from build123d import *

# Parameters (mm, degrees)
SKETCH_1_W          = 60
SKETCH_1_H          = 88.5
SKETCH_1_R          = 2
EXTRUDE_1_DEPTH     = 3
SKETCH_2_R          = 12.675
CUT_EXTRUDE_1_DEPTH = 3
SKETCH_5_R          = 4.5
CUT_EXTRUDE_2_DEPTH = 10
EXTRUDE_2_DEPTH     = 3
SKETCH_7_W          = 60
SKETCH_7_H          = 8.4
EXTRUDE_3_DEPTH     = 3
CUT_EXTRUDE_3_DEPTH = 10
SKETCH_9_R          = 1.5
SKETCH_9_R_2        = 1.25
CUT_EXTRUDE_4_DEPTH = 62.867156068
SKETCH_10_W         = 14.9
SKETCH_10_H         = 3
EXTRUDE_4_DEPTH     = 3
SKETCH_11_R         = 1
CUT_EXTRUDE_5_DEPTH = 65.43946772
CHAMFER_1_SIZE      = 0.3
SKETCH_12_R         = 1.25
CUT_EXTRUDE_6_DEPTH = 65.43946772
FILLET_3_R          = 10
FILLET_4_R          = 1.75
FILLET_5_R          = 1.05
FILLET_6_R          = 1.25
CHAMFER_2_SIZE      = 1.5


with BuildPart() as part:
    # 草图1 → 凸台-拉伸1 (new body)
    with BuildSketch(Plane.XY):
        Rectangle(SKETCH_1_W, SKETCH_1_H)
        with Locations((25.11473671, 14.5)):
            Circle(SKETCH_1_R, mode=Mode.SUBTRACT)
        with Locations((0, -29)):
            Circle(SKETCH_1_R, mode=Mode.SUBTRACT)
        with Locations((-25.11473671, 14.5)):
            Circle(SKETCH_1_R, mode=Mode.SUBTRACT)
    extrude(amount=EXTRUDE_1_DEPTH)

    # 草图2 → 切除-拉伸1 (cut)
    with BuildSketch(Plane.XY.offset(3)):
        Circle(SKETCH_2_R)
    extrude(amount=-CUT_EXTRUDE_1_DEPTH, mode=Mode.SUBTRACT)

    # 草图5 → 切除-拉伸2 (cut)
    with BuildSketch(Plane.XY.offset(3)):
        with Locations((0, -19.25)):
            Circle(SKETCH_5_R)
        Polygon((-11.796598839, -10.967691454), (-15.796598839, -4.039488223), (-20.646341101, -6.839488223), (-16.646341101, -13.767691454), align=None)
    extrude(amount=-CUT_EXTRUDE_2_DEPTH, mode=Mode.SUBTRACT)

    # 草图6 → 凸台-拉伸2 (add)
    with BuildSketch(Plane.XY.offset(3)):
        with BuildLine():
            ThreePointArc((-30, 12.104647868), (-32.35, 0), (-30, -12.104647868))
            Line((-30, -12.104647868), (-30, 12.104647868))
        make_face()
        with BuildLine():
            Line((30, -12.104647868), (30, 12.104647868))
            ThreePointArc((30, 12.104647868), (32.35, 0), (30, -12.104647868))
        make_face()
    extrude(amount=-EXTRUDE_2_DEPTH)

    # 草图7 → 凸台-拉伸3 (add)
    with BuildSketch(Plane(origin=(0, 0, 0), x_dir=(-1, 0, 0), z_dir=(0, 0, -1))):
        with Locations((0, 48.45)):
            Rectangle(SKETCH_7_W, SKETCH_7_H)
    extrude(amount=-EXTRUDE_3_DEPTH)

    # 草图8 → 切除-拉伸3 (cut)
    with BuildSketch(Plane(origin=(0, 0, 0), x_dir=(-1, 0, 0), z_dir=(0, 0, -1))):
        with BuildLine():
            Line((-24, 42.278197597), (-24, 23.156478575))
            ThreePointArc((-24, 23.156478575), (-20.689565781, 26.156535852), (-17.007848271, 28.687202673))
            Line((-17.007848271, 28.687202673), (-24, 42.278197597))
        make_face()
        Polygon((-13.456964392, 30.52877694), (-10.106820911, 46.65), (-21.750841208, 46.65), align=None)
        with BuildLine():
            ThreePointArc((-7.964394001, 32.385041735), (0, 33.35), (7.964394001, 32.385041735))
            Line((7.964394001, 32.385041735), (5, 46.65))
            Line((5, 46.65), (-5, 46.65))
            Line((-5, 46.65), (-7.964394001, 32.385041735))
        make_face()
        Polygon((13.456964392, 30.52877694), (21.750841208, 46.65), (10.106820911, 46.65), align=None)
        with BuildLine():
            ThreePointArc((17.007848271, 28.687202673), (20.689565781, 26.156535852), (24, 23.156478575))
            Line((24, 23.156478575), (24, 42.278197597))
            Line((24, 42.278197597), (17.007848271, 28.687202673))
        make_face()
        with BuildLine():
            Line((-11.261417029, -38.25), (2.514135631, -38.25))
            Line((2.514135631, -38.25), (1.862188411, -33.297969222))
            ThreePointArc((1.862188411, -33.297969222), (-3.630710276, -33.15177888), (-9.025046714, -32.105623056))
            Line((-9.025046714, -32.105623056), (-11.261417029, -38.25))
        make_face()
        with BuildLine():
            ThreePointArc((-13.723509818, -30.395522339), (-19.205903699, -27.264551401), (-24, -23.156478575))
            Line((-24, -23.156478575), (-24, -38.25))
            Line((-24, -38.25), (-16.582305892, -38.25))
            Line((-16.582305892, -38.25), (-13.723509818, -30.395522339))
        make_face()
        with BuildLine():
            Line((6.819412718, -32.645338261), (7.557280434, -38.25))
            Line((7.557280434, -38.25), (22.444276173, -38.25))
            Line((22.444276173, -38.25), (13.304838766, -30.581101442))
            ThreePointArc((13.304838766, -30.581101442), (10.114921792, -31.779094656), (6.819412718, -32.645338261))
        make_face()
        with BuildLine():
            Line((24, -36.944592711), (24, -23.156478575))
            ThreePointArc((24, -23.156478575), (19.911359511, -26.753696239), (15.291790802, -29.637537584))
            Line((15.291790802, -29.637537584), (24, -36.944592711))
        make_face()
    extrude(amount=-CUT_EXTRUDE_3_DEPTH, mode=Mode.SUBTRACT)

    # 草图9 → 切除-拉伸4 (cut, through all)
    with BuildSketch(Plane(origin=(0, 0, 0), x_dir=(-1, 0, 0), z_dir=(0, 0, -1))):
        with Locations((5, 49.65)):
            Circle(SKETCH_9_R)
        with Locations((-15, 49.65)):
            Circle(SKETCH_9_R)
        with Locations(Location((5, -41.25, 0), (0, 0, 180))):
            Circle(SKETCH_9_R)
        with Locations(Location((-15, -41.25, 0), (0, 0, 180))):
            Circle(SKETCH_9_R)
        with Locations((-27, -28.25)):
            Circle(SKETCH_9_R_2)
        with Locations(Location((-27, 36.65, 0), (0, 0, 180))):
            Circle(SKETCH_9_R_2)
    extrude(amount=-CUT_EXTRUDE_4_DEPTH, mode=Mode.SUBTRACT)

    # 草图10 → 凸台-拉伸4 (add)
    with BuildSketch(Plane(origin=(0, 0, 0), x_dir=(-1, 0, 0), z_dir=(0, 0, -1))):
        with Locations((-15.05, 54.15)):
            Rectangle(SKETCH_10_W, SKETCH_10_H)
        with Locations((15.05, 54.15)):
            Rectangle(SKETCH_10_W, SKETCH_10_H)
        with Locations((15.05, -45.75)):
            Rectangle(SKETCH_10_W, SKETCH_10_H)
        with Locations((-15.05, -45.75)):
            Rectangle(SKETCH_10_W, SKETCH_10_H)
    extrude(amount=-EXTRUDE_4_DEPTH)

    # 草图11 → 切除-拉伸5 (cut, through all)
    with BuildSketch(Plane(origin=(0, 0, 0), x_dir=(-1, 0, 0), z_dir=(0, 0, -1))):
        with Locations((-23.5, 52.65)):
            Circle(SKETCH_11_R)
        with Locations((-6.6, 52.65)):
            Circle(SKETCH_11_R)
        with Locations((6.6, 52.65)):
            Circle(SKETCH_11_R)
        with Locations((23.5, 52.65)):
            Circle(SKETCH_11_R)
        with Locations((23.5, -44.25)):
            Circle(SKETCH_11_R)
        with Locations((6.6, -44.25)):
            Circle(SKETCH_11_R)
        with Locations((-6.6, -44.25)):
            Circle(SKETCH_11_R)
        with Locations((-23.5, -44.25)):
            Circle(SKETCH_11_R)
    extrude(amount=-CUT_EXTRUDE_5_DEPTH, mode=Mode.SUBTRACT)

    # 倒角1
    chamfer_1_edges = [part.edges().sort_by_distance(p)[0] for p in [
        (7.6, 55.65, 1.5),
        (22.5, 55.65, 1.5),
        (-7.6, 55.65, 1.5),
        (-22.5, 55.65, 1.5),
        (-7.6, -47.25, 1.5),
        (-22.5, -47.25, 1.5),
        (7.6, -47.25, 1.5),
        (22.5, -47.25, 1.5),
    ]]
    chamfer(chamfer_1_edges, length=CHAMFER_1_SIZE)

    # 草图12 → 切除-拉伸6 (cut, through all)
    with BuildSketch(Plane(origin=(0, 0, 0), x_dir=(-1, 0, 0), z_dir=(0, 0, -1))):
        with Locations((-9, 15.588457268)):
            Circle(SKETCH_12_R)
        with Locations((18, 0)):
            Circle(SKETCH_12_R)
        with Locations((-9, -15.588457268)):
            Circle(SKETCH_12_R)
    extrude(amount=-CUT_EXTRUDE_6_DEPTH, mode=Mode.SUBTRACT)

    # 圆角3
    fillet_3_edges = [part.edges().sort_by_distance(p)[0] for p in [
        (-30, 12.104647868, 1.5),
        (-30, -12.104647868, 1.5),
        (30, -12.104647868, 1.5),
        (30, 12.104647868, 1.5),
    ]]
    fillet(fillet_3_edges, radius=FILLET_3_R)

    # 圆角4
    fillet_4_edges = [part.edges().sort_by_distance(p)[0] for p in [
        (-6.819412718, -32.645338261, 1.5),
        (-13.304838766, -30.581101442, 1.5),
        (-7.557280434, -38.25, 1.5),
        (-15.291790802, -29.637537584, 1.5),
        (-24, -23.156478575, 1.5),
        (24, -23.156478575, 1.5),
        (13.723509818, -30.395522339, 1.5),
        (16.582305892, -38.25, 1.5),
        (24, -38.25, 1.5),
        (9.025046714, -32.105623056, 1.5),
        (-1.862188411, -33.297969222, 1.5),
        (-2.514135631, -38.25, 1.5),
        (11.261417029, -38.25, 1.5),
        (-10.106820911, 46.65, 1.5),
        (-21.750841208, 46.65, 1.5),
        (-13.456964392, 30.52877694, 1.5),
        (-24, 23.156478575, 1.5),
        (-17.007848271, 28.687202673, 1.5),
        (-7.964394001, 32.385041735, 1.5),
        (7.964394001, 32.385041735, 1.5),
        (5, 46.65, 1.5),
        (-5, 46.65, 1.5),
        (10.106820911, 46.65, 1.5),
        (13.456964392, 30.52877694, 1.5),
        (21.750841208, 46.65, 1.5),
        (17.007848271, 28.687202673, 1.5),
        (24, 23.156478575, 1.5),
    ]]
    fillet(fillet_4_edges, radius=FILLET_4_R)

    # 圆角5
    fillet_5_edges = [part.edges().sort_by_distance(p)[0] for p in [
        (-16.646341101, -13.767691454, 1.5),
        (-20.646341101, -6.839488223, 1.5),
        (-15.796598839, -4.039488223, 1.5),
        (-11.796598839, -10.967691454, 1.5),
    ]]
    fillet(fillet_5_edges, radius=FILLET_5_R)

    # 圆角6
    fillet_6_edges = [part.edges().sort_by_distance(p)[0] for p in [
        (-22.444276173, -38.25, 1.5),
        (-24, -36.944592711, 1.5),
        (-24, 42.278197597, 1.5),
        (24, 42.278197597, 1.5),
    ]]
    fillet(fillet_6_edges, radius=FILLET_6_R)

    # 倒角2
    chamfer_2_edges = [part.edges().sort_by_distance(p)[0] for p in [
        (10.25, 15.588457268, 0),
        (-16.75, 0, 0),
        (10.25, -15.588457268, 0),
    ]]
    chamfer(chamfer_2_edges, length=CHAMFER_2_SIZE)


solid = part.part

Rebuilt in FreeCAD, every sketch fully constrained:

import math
import FreeCAD as App
import Part
import Sketcher
Q = App.Units.Quantity


def edges_at(feature, points):
    """Names of the edges that pass closest to the given points."""
    edges = feature.Shape.Edges
    near = lambda p: min(range(len(edges)), key=lambda i: edges[i].distToShape(Part.Vertex(*p))[0])
    return sorted({f"Edge{near(p) + 1}" for p in points})


def add_polygon(sketch, points):
    """Adds a closed chain of lines whose ends are joined by coincident constraints."""
    first, n = sketch.GeometryCount, len(points)
    for a, b in zip(points, points[1:] + points[:1]):
        sketch.addGeometry(Part.LineSegment(App.Vector(*a, 0), App.Vector(*b, 0)), False)
    for i in range(n):
        sketch.addConstraint(Sketcher.Constraint("Coincident", first + i, 2, first + (i + 1) % n, 1))

doc = App.newDocument("Part")
body = doc.addObject("PartDesign::Body", "Body")

# Sketch on XY plane
sketch1 = doc.addObject("Sketcher::SketchObject", "Sketch")
body.addObject(sketch1)
sketch1.AttachmentSupport = (doc.XY_Plane, [""])
sketch1.MapMode = "FlatFace"
add_polygon(sketch1, [(-30, 44.2), (-30, -44.2), (30, -44.2), (30, 44.2)])  # lines 0-3
sketch1.addGeometry(Part.Circle(App.Vector(0, -29, 0), App.Vector(0, 0, 1), 2), False)  # 4
sketch1.addGeometry(Part.Circle(App.Vector(-25.1, 14.5, 0), App.Vector(0, 0, 1), 2), False)  # 5
sketch1.addGeometry(Part.Circle(App.Vector(25.1, 14.5, 0), App.Vector(0, 0, 1), 2), False)  # 6
sketch1.addConstraint(Sketcher.Constraint("Vertical", 0))
sketch1.addConstraint(Sketcher.Constraint("Horizontal", 1))
sketch1.addConstraint(Sketcher.Constraint("Vertical", 2))
sketch1.addConstraint(Sketcher.Constraint("Horizontal", 3))
sketch1.addConstraint(Sketcher.Constraint("Equal", 4, 5))
sketch1.addConstraint(Sketcher.Constraint("Equal", 5, 6))
sketch1.addConstraint(Sketcher.Constraint("Symmetric", 0, 2, 2, 2, -1, 1))
sketch1.addConstraint(Sketcher.Constraint("Symmetric", 5, 3, 6, 3, -2))
sketch1.addConstraint(Sketcher.Constraint("PointOnObject", 4, 3, -2))
sketch1.addConstraint(Sketcher.Constraint("Diameter", 4, 4.0))
sketch1.addConstraint(Sketcher.Constraint("DistanceX", 1, 1, 1, 2, 60.0))
sketch1.addConstraint(Sketcher.Constraint("DistanceY", 0, 2, 0, 1, 88.5))
sketch1.addConstraint(Sketcher.Constraint("DistanceY", 4, 3, -1, 1, 29.0))
sketch1.addConstraint(Sketcher.Constraint("DistanceY", -1, 1, 5, 3, 14.5))
sketch1.addConstraint(Sketcher.Constraint("DistanceX", 5, 3, -1, 1, 25.114737))
pad1 = doc.addObject("PartDesign::Pad", "Pad")
body.addObject(pad1)
pad1.Profile = sketch1
pad1.Length = 3

# Sketch on XY plane
sketch2 = doc.addObject("Sketcher::SketchObject", "Sketch001")
body.addObject(sketch2)
sketch2.AttachmentSupport = (doc.XY_Plane, [""])
sketch2.MapMode = "FlatFace"
sketch2.AttachmentOffset = App.Placement(App.Vector(0, 0, 3), App.Rotation())
sketch2.addGeometry(Part.Circle(App.Vector(0, 0, 0), App.Vector(0, 0, 1), 13), False)
sketch2.addConstraint(Sketcher.Constraint("Coincident", 0, 3, -1, 1))
sketch2.addConstraint(Sketcher.Constraint("Diameter", 0, 25.35))
pocket1 = doc.addObject("PartDesign::Pocket", "Pocket")
body.addObject(pocket1)
pocket1.Profile = sketch2
pocket1.Length = 3

# Sketch on XY plane
sketch3 = doc.addObject("Sketcher::SketchObject", "Sketch002")
body.addObject(sketch3)
sketch3.AttachmentSupport = (doc.XY_Plane, [""])
sketch3.MapMode = "FlatFace"
sketch3.AttachmentOffset = App.Placement(App.Vector(0, 0, 3), App.Rotation())
sketch3.addGeometry(Part.Circle(App.Vector(0, -19.2, 0), App.Vector(0, 0, 1), 4.5), False)  # 0
add_polygon(sketch3, [(-11.8, -11), (-15.8, -4), (-20.6, -6.8), (-16.6, -13.8)])  # lines 1-4
sketch3.addConstraint(Sketcher.Constraint("PointOnObject", 0, 3, -2))
sketch3.addConstraint(Sketcher.Constraint("Perpendicular", 1, 2))
sketch3.addConstraint(Sketcher.Constraint("Perpendicular", 2, 3))
sketch3.addConstraint(Sketcher.Constraint("Perpendicular", 3, 4))
sketch3.addConstraint(Sketcher.Constraint("Diameter", 0, 9.0))
sketch3.addConstraint(Sketcher.Constraint("Angle", 1, Q("120 deg")))
sketch3.addConstraint(Sketcher.Constraint("Distance", 1, 8.0))
sketch3.addConstraint(Sketcher.Constraint("Distance", 2, 5.6))
sketch3.addConstraint(Sketcher.Constraint("DistanceY", 0, 3, -1, 1, 19.25))
sketch3.addConstraint(Sketcher.Constraint("DistanceX", 1, 2, -1, 1, 15.796599))
sketch3.addConstraint(Sketcher.Constraint("DistanceY", 1, 2, -1, 1, 4.039488))
pocket2 = doc.addObject("PartDesign::Pocket", "Pocket001")
body.addObject(pocket2)
pocket2.Profile = sketch3
pocket2.Length = 10

# Sketch on XY plane
sketch4 = doc.addObject("Sketcher::SketchObject", "Sketch003")
body.addObject(sketch4)
sketch4.AttachmentSupport = (doc.XY_Plane, [""])
sketch4.MapMode = "FlatFace"
sketch4.AttachmentOffset = App.Placement(App.Vector(0, 0, 3), App.Rotation())
sketch4.addGeometry(Part.ArcOfCircle(Part.Circle(App.Vector(0, 0, 0), App.Vector(0, 0, 1), 32), math.radians(158), math.radians(202)), False)
sketch4.addGeometry(Part.LineSegment(App.Vector(-30, -12, 0), App.Vector(-30, 12, 0)), False)
sketch4.addGeometry(Part.LineSegment(App.Vector(30, 12, 0), App.Vector(30, -12, 0)), False)
sketch4.addGeometry(Part.ArcOfCircle(Part.Circle(App.Vector(0, 0, 0), App.Vector(0, 0, 1), 32), math.radians(-22), math.radians(22)), False)
sketch4.addConstraint(Sketcher.Constraint("Coincident", 0, 1, 1, 2))
sketch4.addConstraint(Sketcher.Constraint("Coincident", 1, 1, 0, 2))
sketch4.addConstraint(Sketcher.Constraint("Coincident", 2, 1, 3, 2))
sketch4.addConstraint(Sketcher.Constraint("Coincident", 3, 1, 2, 2))
sketch4.addConstraint(Sketcher.Constraint("Vertical", 1))
sketch4.addConstraint(Sketcher.Constraint("Vertical", 2))
sketch4.addConstraint(Sketcher.Constraint("Coincident", 0, 3, -1, 1))
sketch4.addConstraint(Sketcher.Constraint("Coincident", 3, 3, -1, 1))
sketch4.addConstraint(Sketcher.Constraint("Equal", 0, 3))
sketch4.addConstraint(Sketcher.Constraint("Horizontal", 0, 1, 2, 1))
sketch4.addConstraint(Sketcher.Constraint("Radius", 0, 32.35))
sketch4.addConstraint(Sketcher.Constraint("DistanceX", 0, 1, -1, 1, 30.0))
pad2 = doc.addObject("PartDesign::Pad", "Pad001")
body.addObject(pad2)
pad2.Profile = sketch4
pad2.Length = 3
pad2.Reversed = True

# Sketch on XY plane
sketch5 = doc.addObject("Sketcher::SketchObject", "Sketch004")
body.addObject(sketch5)
sketch5.AttachmentSupport = (doc.XY_Plane, [""])
sketch5.MapMode = "FlatFace"
add_polygon(sketch5, [(30, 53), (30, 44), (-30, 44), (-30, 53)])  # lines 0-3
sketch5.addConstraint(Sketcher.Constraint("Vertical", 0))
sketch5.addConstraint(Sketcher.Constraint("Horizontal", 1))
sketch5.addConstraint(Sketcher.Constraint("Vertical", 2))
sketch5.addConstraint(Sketcher.Constraint("Horizontal", 3))
sketch5.addConstraint(Sketcher.Constraint("DistanceX", 1, 2, 1, 1, 60.0))
sketch5.addConstraint(Sketcher.Constraint("DistanceY", 0, 2, 0, 1, 8.4))
sketch5.addConstraint(Sketcher.Constraint("DistanceX", -1, 1, 0, 2, 30.0))
sketch5.addConstraint(Sketcher.Constraint("DistanceY", -1, 1, 0, 2, 44.25))
pad3 = doc.addObject("PartDesign::Pad", "Pad002")
body.addObject(pad3)
pad3.Profile = sketch5
pad3.Length = 3

# Sketch on XY plane
sketch6 = doc.addObject("Sketcher::SketchObject", "Sketch005")
body.addObject(sketch6)
sketch6.AttachmentSupport = (doc.XY_Plane, [""])
sketch6.MapMode = "FlatFace"
sketch6.addGeometry(Part.LineSegment(App.Vector(24, 42.3, 0), App.Vector(24, 23.2, 0)), False)  # 0
sketch6.addGeometry(Part.ArcOfCircle(Part.Circle(App.Vector(0, 0, 0), App.Vector(0, 0, 1), 33.4), math.radians(43.98), math.radians(59.34)), False)  # 1
sketch6.addGeometry(Part.LineSegment(App.Vector(17, 28.7, 0), App.Vector(24, 42.3, 0)), False)  # 2
add_polygon(sketch6, [(13.5, 30.5), (10.1, 46.6), (21.8, 46.6)])  # lines 3-5
sketch6.addGeometry(Part.ArcOfCircle(Part.Circle(App.Vector(0, 0, 0), App.Vector(0, 0, 1), 33.3), math.radians(76), math.radians(104)), False)  # 6
sketch6.addGeometry(Part.LineSegment(App.Vector(-8, 32.4, 0), App.Vector(-5, 46.6, 0)), False)  # 7
sketch6.addGeometry(Part.LineSegment(App.Vector(-5, 46.6, 0), App.Vector(5, 46.6, 0)), False)  # 8
sketch6.addGeometry(Part.LineSegment(App.Vector(5, 46.6, 0), App.Vector(8, 32.4, 0)), False)  # 9
add_polygon(sketch6, [(-13.5, 30.5), (-21.8, 46.6), (-10.1, 46.6)])  # lines 10-12
sketch6.addGeometry(Part.ArcOfCircle(Part.Circle(App.Vector(0, 0, 0), App.Vector(0, 0, 1), 33.4), math.radians(120.66), math.radians(136.02)), False)  # 13
sketch6.addGeometry(Part.LineSegment(App.Vector(-24, 23.2, 0), App.Vector(-24, 42.3, 0)), False)  # 14
sketch6.addGeometry(Part.LineSegment(App.Vector(-24, 42.3, 0), App.Vector(-17, 28.7, 0)), False)  # 15
sketch6.addGeometry(Part.LineSegment(App.Vector(11.3, -38.2, 0), App.Vector(-2.5, -38.2, 0)), False)  # 16
sketch6.addGeometry(Part.LineSegment(App.Vector(-2.5, -38.2, 0), App.Vector(-1.9, -33.3, 0)), False)  # 17
sketch6.addGeometry(Part.ArcOfCircle(Part.Circle(App.Vector(0, 0, 0), App.Vector(0, 0, 1), 33.3), math.radians(-93.2), math.radians(-74.3)), False)  # 18
sketch6.addGeometry(Part.LineSegment(App.Vector(9, -32.1, 0), App.Vector(11.3, -38.2, 0)), False)  # 19
sketch6.addGeometry(Part.ArcOfCircle(Part.Circle(App.Vector(0, 0, 0), App.Vector(0, 0, 1), 33.3), math.radians(-66), math.radians(-44)), False)  # 20
sketch6.addGeometry(Part.LineSegment(App.Vector(24, -23.2, 0), App.Vector(24, -38.2, 0)), False)  # 21
sketch6.addGeometry(Part.LineSegment(App.Vector(24, -38.2, 0), App.Vector(16.6, -38.2, 0)), False)  # 22
sketch6.addGeometry(Part.LineSegment(App.Vector(16.6, -38.2, 0), App.Vector(13.7, -30.4, 0)), False)  # 23
sketch6.addGeometry(Part.LineSegment(App.Vector(-6.8, -32.6, 0), App.Vector(-7.6, -38.2, 0)), False)  # 24
sketch6.addGeometry(Part.LineSegment(App.Vector(-7.6, -38.2, 0), App.Vector(-22.4, -38.2, 0)), False)  # 25
sketch6.addGeometry(Part.LineSegment(App.Vector(-22.4, -38.2, 0), App.Vector(-13.3, -30.6, 0)), False)  # 26
sketch6.addGeometry(Part.ArcOfCircle(Part.Circle(App.Vector(0, 0, 0), App.Vector(0, 0, 1), 33.3), math.radians(-113.51), math.radians(-101.8)), False)  # 27
sketch6.addGeometry(Part.LineSegment(App.Vector(-24, -36.9, 0), App.Vector(-24, -23.2, 0)), False)  # 28
sketch6.addGeometry(Part.ArcOfCircle(Part.Circle(App.Vector(0, 0, 0), App.Vector(0, 0, 1), 33.3), math.radians(-136.02), math.radians(-117.29)), False)  # 29
sketch6.addGeometry(Part.LineSegment(App.Vector(-15.3, -29.6, 0), App.Vector(-24, -36.9, 0)), False)  # 30
sketch6.addConstraint(Sketcher.Constraint("Coincident", 0, 2, 1, 1))
sketch6.addConstraint(Sketcher.Constraint("Coincident", 1, 2, 2, 1))
sketch6.addConstraint(Sketcher.Constraint("Coincident", 2, 2, 0, 1))
sketch6.addConstraint(Sketcher.Constraint("Coincident", 6, 2, 7, 1))
sketch6.addConstraint(Sketcher.Constraint("Coincident", 7, 2, 8, 1))
sketch6.addConstraint(Sketcher.Constraint("Coincident", 8, 2, 9, 1))
sketch6.addConstraint(Sketcher.Constraint("Coincident", 9, 2, 6, 1))
sketch6.addConstraint(Sketcher.Constraint("Coincident", 13, 2, 14, 1))
sketch6.addConstraint(Sketcher.Constraint("Coincident", 14, 2, 15, 1))
sketch6.addConstraint(Sketcher.Constraint("Coincident", 15, 2, 13, 1))
sketch6.addConstraint(Sketcher.Constraint("Coincident", 16, 2, 17, 1))
sketch6.addConstraint(Sketcher.Constraint("Coincident", 17, 2, 18, 1))
sketch6.addConstraint(Sketcher.Constraint("Coincident", 18, 2, 19, 1))
sketch6.addConstraint(Sketcher.Constraint("Coincident", 19, 2, 16, 1))
sketch6.addConstraint(Sketcher.Constraint("Coincident", 20, 2, 21, 1))
sketch6.addConstraint(Sketcher.Constraint("Coincident", 21, 2, 22, 1))
sketch6.addConstraint(Sketcher.Constraint("Coincident", 22, 2, 23, 1))
sketch6.addConstraint(Sketcher.Constraint("Coincident", 23, 2, 20, 1))
sketch6.addConstraint(Sketcher.Constraint("Coincident", 24, 2, 25, 1))
sketch6.addConstraint(Sketcher.Constraint("Coincident", 25, 2, 26, 1))
sketch6.addConstraint(Sketcher.Constraint("Coincident", 26, 2, 27, 1))
sketch6.addConstraint(Sketcher.Constraint("Coincident", 27, 2, 24, 1))
sketch6.addConstraint(Sketcher.Constraint("Coincident", 28, 2, 29, 1))
sketch6.addConstraint(Sketcher.Constraint("Coincident", 29, 2, 30, 1))
sketch6.addConstraint(Sketcher.Constraint("Coincident", 30, 2, 28, 1))
sketch6.addConstraint(Sketcher.Constraint("Vertical", 0))
sketch6.addConstraint(Sketcher.Constraint("Horizontal", 4))
sketch6.addConstraint(Sketcher.Constraint("Horizontal", 8))
sketch6.addConstraint(Sketcher.Constraint("Horizontal", 11))
sketch6.addConstraint(Sketcher.Constraint("Vertical", 14))
sketch6.addConstraint(Sketcher.Constraint("Horizontal", 16))
sketch6.addConstraint(Sketcher.Constraint("Vertical", 21))
sketch6.addConstraint(Sketcher.Constraint("Horizontal", 22))
sketch6.addConstraint(Sketcher.Constraint("Horizontal", 25))
sketch6.addConstraint(Sketcher.Constraint("Vertical", 28))
sketch6.addConstraint(Sketcher.Constraint("Coincident", 1, 3, -1, 1))
sketch6.addConstraint(Sketcher.Constraint("Coincident", 6, 3, -1, 1))
sketch6.addConstraint(Sketcher.Constraint("Coincident", 13, 3, -1, 1))
sketch6.addConstraint(Sketcher.Constraint("Coincident", 18, 3, -1, 1))
sketch6.addConstraint(Sketcher.Constraint("Coincident", 20, 3, -1, 1))
sketch6.addConstraint(Sketcher.Constraint("Coincident", 27, 3, -1, 1))
sketch6.addConstraint(Sketcher.Constraint("Coincident", 29, 3, -1, 1))
sketch6.addConstraint(Sketcher.Constraint("Equal", 1, 6))
sketch6.addConstraint(Sketcher.Constraint("Equal", 6, 13))
sketch6.addConstraint(Sketcher.Constraint("Equal", 13, 18))
sketch6.addConstraint(Sketcher.Constraint("Equal", 18, 20))
sketch6.addConstraint(Sketcher.Constraint("Equal", 20, 27))
sketch6.addConstraint(Sketcher.Constraint("Equal", 27, 29))
sketch6.addConstraint(Sketcher.Constraint("Symmetric", 4, 2, 10, 2, -2))
sketch6.addConstraint(Sketcher.Constraint("Symmetric", 5, 2, 12, 2, -2))
sketch6.addConstraint(Sketcher.Constraint("Symmetric", 2, 2, 14, 2, -2))
sketch6.addConstraint(Sketcher.Constraint("Parallel", 2, 5))
sketch6.addConstraint(Sketcher.Constraint("Parallel", 3, 9))
sketch6.addConstraint(Sketcher.Constraint("Parallel", 7, 12))
sketch6.addConstraint(Sketcher.Constraint("Parallel", 10, 15))
sketch6.addConstraint(Sketcher.Constraint("Parallel", 19, 23))
sketch6.addConstraint(Sketcher.Constraint("Parallel", 17, 24))
sketch6.addConstraint(Sketcher.Constraint("Parallel", 26, 30))
sketch6.addConstraint(Sketcher.Constraint("Horizontal", 4, 2, 7, 2))
sketch6.addConstraint(Sketcher.Constraint("Horizontal", 6, 2, 9, 2))
sketch6.addConstraint(Sketcher.Constraint("Horizontal", 19, 2, 21, 2))
sketch6.addConstraint(Sketcher.Constraint("Horizontal", 22, 2, 24, 2))
sketch6.addConstraint(Sketcher.Constraint("Horizontal", 20, 2, 28, 2))
sketch6.addConstraint(Sketcher.Constraint("Vertical", 2, 2, 20, 2))
sketch6.addConstraint(Sketcher.Constraint("Equal", 4, 11))
sketch6.addConstraint(Sketcher.Constraint("DistanceX", 8, 1, 8, 2, 10.0))
sketch6.addConstraint(Sketcher.Constraint("Angle", 19, Q("-70 deg")))
sketch6.addConstraint(Sketcher.Constraint("Angle", 26, Q("40 deg")))
sketch6.addConstraint(Sketcher.Constraint("Radius", 1, 33.35))
sketch6.addConstraint(Sketcher.Constraint("DistanceX", -1, 1, 0, 2, 24.0))
sketch6.addConstraint(Sketcher.Constraint("Angle", 17, Q("82.5 deg")))
sketch6.addConstraint(Sketcher.Constraint("DistanceY", -1, 1, 3, 2, 46.65))
sketch6.addConstraint(Sketcher.Constraint("DistanceY", 16, 2, -1, 1, 38.25))
sketch6.addConstraint(Sketcher.Constraint("DistanceX", 4, 1, 4, 2, 11.64402))
sketch6.addConstraint(Sketcher.Constraint("DistanceY", 0, 2, 0, 1, 19.121719))
sketch6.addConstraint(Sketcher.Constraint("DistanceY", 26, 2, -1, 1, 30.581101))
sketch6.addConstraint(Sketcher.Constraint("DistanceY", 0, 2, 5, 2, 7.372298))
sketch6.addConstraint(Sketcher.Constraint("DistanceY", 18, 2, 23, 2, 1.710101))
sketch6.addConstraint(Sketcher.Constraint("DistanceY", 27, 2, 29, 2, 3.007801))
sketch6.addConstraint(Sketcher.Constraint("Distance", 3, 16.46564))
sketch6.addConstraint(Sketcher.Constraint("Distance", 17, 4.994762))
sketch6.addConstraint(Sketcher.Constraint("Distance", 19, 6.538709))
sketch6.addConstraint(Sketcher.Constraint("Distance", 30, 11.36776))
sketch6.addConstraint(Sketcher.Constraint("DistanceX", -1, 1, 3, 2, 10.106821))
pocket3 = doc.addObject("PartDesign::Pocket", "Pocket002")
body.addObject(pocket3)
pocket3.Profile = sketch6
pocket3.Length = 10
pocket3.Reversed = True

# Sketch on XY plane
sketch7 = doc.addObject("Sketcher::SketchObject", "Sketch006")
body.addObject(sketch7)
sketch7.AttachmentSupport = (doc.XY_Plane, [""])
sketch7.MapMode = "FlatFace"
sketch7.addGeometry(Part.Circle(App.Vector(-5, 49.6, 0), App.Vector(0, 0, 1), 1.5), False)
sketch7.addGeometry(Part.Circle(App.Vector(15, 49.6, 0), App.Vector(0, 0, 1), 1.5), False)
sketch7.addGeometry(Part.Circle(App.Vector(-5, -41.2, 0), App.Vector(0, 0, 1), 1.5), False)
sketch7.addGeometry(Part.Circle(App.Vector(15, -41.2, 0), App.Vector(0, 0, 1), 1.5), False)
sketch7.addGeometry(Part.Circle(App.Vector(27, -28.2, 0), App.Vector(0, 0, 1), 1.2), False)
sketch7.addGeometry(Part.Circle(App.Vector(27, 36.6, 0), App.Vector(0, 0, 1), 1.2), False)
sketch7.addConstraint(Sketcher.Constraint("Equal", 0, 1))
sketch7.addConstraint(Sketcher.Constraint("Equal", 1, 2))
sketch7.addConstraint(Sketcher.Constraint("Equal", 2, 3))
sketch7.addConstraint(Sketcher.Constraint("Equal", 4, 5))
sketch7.addConstraint(Sketcher.Constraint("Horizontal", 0, 3, 1, 3))
sketch7.addConstraint(Sketcher.Constraint("Horizontal", 2, 3, 3, 3))
sketch7.addConstraint(Sketcher.Constraint("Vertical", 0, 3, 2, 3))
sketch7.addConstraint(Sketcher.Constraint("Vertical", 1, 3, 3, 3))
sketch7.addConstraint(Sketcher.Constraint("Vertical", 4, 3, 5, 3))
sketch7.addConstraint(Sketcher.Constraint("Diameter", 0, 3.0))
sketch7.addConstraint(Sketcher.Constraint("Diameter", 4, 2.5))
sketch7.addConstraint(Sketcher.Constraint("DistanceX", 0, 3, -1, 1, 5.0))
sketch7.addConstraint(Sketcher.Constraint("DistanceX", -1, 1, 1, 3, 15.0))
sketch7.addConstraint(Sketcher.Constraint("DistanceX", -1, 1, 4, 3, 27.0))
sketch7.addConstraint(Sketcher.Constraint("DistanceY", 3, 3, 4, 3, 13.0))
sketch7.addConstraint(Sketcher.Constraint("DistanceY", 5, 3, 1, 3, 13.0))
sketch7.addConstraint(Sketcher.Constraint("DistanceY", 2, 3, 0, 3, 90.9))
sketch7.addConstraint(Sketcher.Constraint("DistanceY", -1, 1, 0, 3, 49.65))
pocket4 = doc.addObject("PartDesign::Pocket", "Pocket003")
body.addObject(pocket4)
pocket4.Profile = sketch7
pocket4.Type = "ThroughAll"
pocket4.Reversed = True

# Sketch on XY plane
sketch8 = doc.addObject("Sketcher::SketchObject", "Sketch007")
body.addObject(sketch8)
sketch8.AttachmentSupport = (doc.XY_Plane, [""])
sketch8.MapMode = "FlatFace"
add_polygon(sketch8, [(22.5, 55.6), (22.5, 52.6), (7.6, 52.6), (7.6, 55.6)])  # lines 0-3
add_polygon(sketch8, [(-7.6, 55.6), (-7.6, 52.6), (-22.5, 52.6), (-22.5, 55.6)])  # lines 4-7
add_polygon(sketch8, [(-7.6, -44.2), (-7.6, -47.2), (-22.5, -47.2), (-22.5, -44.2)])  # lines 8-11
add_polygon(sketch8, [(22.5, -44.2), (22.5, -47.2), (7.6, -47.2), (7.6, -44.2)])  # lines 12-15
sketch8.addConstraint(Sketcher.Constraint("Vertical", 0))
sketch8.addConstraint(Sketcher.Constraint("Horizontal", 1))
sketch8.addConstraint(Sketcher.Constraint("Vertical", 2))
sketch8.addConstraint(Sketcher.Constraint("Horizontal", 3))
sketch8.addConstraint(Sketcher.Constraint("Vertical", 4))
sketch8.addConstraint(Sketcher.Constraint("Horizontal", 5))
sketch8.addConstraint(Sketcher.Constraint("Vertical", 6))
sketch8.addConstraint(Sketcher.Constraint("Horizontal", 7))
sketch8.addConstraint(Sketcher.Constraint("Vertical", 8))
sketch8.addConstraint(Sketcher.Constraint("Horizontal", 9))
sketch8.addConstraint(Sketcher.Constraint("Vertical", 10))
sketch8.addConstraint(Sketcher.Constraint("Horizontal", 11))
sketch8.addConstraint(Sketcher.Constraint("Vertical", 12))
sketch8.addConstraint(Sketcher.Constraint("Horizontal", 13))
sketch8.addConstraint(Sketcher.Constraint("Vertical", 14))
sketch8.addConstraint(Sketcher.Constraint("Horizontal", 15))
sketch8.addConstraint(Sketcher.Constraint("Symmetric", 1, 2, 4, 2, -2))
sketch8.addConstraint(Sketcher.Constraint("Symmetric", 3, 2, 6, 2, -2))
sketch8.addConstraint(Sketcher.Constraint("Symmetric", 9, 2, 12, 2, -2))
sketch8.addConstraint(Sketcher.Constraint("Symmetric", 11, 2, 14, 2, -2))
sketch8.addConstraint(Sketcher.Constraint("Vertical", 7, 2, 8, 2))
sketch8.addConstraint(Sketcher.Constraint("Vertical", 6, 2, 9, 2))
sketch8.addConstraint(Sketcher.Constraint("Equal", 6, 8))
sketch8.addConstraint(Sketcher.Constraint("DistanceY", 0, 2, 0, 1, 3.0))
sketch8.addConstraint(Sketcher.Constraint("DistanceX", 1, 2, 1, 1, 14.9))
sketch8.addConstraint(Sketcher.Constraint("DistanceX", 5, 2, 0, 2, 45.0))
sketch8.addConstraint(Sketcher.Constraint("DistanceY", 8, 2, 4, 2, 99.9))
sketch8.addConstraint(Sketcher.Constraint("DistanceY", -1, 1, 0, 2, 52.65))
pad4 = doc.addObject("PartDesign::Pad", "Pad003")
body.addObject(pad4)
pad4.Profile = sketch8
pad4.Length = 3

# Sketch on XY plane
sketch9 = doc.addObject("Sketcher::SketchObject", "Sketch008")
body.addObject(sketch9)
sketch9.AttachmentSupport = (doc.XY_Plane, [""])
sketch9.MapMode = "FlatFace"
sketch9.addGeometry(Part.Circle(App.Vector(23.5, 52.6, 0), App.Vector(0, 0, 1), 1), False)
sketch9.addGeometry(Part.Circle(App.Vector(6.6, 52.6, 0), App.Vector(0, 0, 1), 1), False)
sketch9.addGeometry(Part.Circle(App.Vector(-6.6, 52.6, 0), App.Vector(0, 0, 1), 1), False)
sketch9.addGeometry(Part.Circle(App.Vector(-23.5, 52.6, 0), App.Vector(0, 0, 1), 1), False)
sketch9.addGeometry(Part.Circle(App.Vector(-23.5, -44.2, 0), App.Vector(0, 0, 1), 1), False)
sketch9.addGeometry(Part.Circle(App.Vector(-6.6, -44.2, 0), App.Vector(0, 0, 1), 1), False)
sketch9.addGeometry(Part.Circle(App.Vector(6.6, -44.2, 0), App.Vector(0, 0, 1), 1), False)
sketch9.addGeometry(Part.Circle(App.Vector(23.5, -44.2, 0), App.Vector(0, 0, 1), 1), False)
sketch9.addConstraint(Sketcher.Constraint("Equal", 0, 1))
sketch9.addConstraint(Sketcher.Constraint("Equal", 1, 2))
sketch9.addConstraint(Sketcher.Constraint("Equal", 2, 3))
sketch9.addConstraint(Sketcher.Constraint("Equal", 3, 4))
sketch9.addConstraint(Sketcher.Constraint("Equal", 4, 5))
sketch9.addConstraint(Sketcher.Constraint("Equal", 5, 6))
sketch9.addConstraint(Sketcher.Constraint("Equal", 6, 7))
sketch9.addConstraint(Sketcher.Constraint("Symmetric", 1, 3, 2, 3, -2))
sketch9.addConstraint(Sketcher.Constraint("Symmetric", 0, 3, 3, 3, -2))
sketch9.addConstraint(Sketcher.Constraint("Symmetric", 5, 3, 6, 3, -2))
sketch9.addConstraint(Sketcher.Constraint("Symmetric", 4, 3, 7, 3, -2))
sketch9.addConstraint(Sketcher.Constraint("Horizontal", 0, 3, 1, 3))
sketch9.addConstraint(Sketcher.Constraint("Horizontal", 4, 3, 5, 3))
sketch9.addConstraint(Sketcher.Constraint("Vertical", 3, 3, 4, 3))
sketch9.addConstraint(Sketcher.Constraint("Vertical", 2, 3, 5, 3))
sketch9.addConstraint(Sketcher.Constraint("Diameter", 0, 2.0))
sketch9.addConstraint(Sketcher.Constraint("DistanceX", 3, 3, 0, 3, 47.0))
sketch9.addConstraint(Sketcher.Constraint("DistanceX", -1, 1, 1, 3, 6.6))
sketch9.addConstraint(Sketcher.Constraint("DistanceY", 4, 3, 3, 3, 96.9))
sketch9.addConstraint(Sketcher.Constraint("DistanceY", -1, 1, 0, 3, 52.65))
pocket5 = doc.addObject("PartDesign::Pocket", "Pocket004")
body.addObject(pocket5)
pocket5.Profile = sketch9
pocket5.Type = "ThroughAll"
pocket5.Reversed = True
doc.recompute()

chamfer = doc.addObject("PartDesign::Chamfer", "Chamfer")
body.addObject(chamfer)
chamfer.Base = (pocket5, edges_at(pocket5, [
    (7.6, 55.65, 1.5),
    (22.5, 55.65, 1.5),
    (-7.6, 55.65, 1.5),
    (-22.5, 55.65, 1.5),
    (-7.6, -47.25, 1.5),
    (-22.5, -47.25, 1.5),
    (7.6, -47.25, 1.5),
    (22.5, -47.25, 1.5),
]))
chamfer.Size = 0.3

# Sketch on XY plane
sketch10 = doc.addObject("Sketcher::SketchObject", "Sketch009")
body.addObject(sketch10)
sketch10.AttachmentSupport = (doc.XY_Plane, [""])
sketch10.MapMode = "FlatFace"
sketch10.addGeometry(Part.Circle(App.Vector(9, 15.6, 0), App.Vector(0, 0, 1), 1.2), False)
sketch10.addGeometry(Part.Circle(App.Vector(-18, 0, 0), App.Vector(0, 0, 1), 1.2), False)
sketch10.addGeometry(Part.Circle(App.Vector(9, -15.6, 0), App.Vector(0, 0, 1), 1.2), False)
sketch10.addConstraint(Sketcher.Constraint("Equal", 0, 1))
sketch10.addConstraint(Sketcher.Constraint("Equal", 1, 2))
sketch10.addConstraint(Sketcher.Constraint("Symmetric", 0, 3, 2, 3, -1))
sketch10.addConstraint(Sketcher.Constraint("PointOnObject", 1, 3, -1))
sketch10.addConstraint(Sketcher.Constraint("Diameter", 0, 2.5))
sketch10.addConstraint(Sketcher.Constraint("DistanceX", -1, 1, 0, 3, 9.0))
sketch10.addConstraint(Sketcher.Constraint("DistanceX", 1, 3, -1, 1, 18.0))
sketch10.addConstraint(Sketcher.Constraint("DistanceY", -1, 1, 0, 3, 15.588457))
pocket6 = doc.addObject("PartDesign::Pocket", "Pocket005")
body.addObject(pocket6)
pocket6.Profile = sketch10
pocket6.Type = "ThroughAll"
pocket6.Reversed = True
doc.recompute()

fillet = doc.addObject("PartDesign::Fillet", "Fillet")
body.addObject(fillet)
fillet.Base = (pocket6, edges_at(pocket6, [
    (-30, 12.105, 1.5),
    (-30, -12.105, 1.5),
    (30, -12.105, 1.5),
    (30, 12.105, 1.5),
]))
fillet.Radius = 10
doc.recompute()

fillet2 = doc.addObject("PartDesign::Fillet", "Fillet001")
body.addObject(fillet2)
fillet2.Base = (fillet, edges_at(fillet, [
    (-6.819, -32.645, 1.5),
    (-13.305, -30.581, 1.5),
    (-7.557, -38.25, 1.5),
    (-15.292, -29.638, 1.5),
    (-24, -23.156, 1.5),
    (24, -23.156, 1.5),
    (13.724, -30.396, 1.5),
    (16.582, -38.25, 1.5),
    (24, -38.25, 1.5),
    (9.025, -32.106, 1.5),
    (-1.862, -33.298, 1.5),
    (-2.514, -38.25, 1.5),
    (11.261, -38.25, 1.5),
    (-10.107, 46.65, 1.5),
    (-21.751, 46.65, 1.5),
    (-13.457, 30.529, 1.5),
    (-24, 23.156, 1.5),
    (-17.008, 28.687, 1.5),
    (-7.964, 32.385, 1.5),
    (7.964, 32.385, 1.5),
    (5, 46.65, 1.5),
    (-5, 46.65, 1.5),
    (10.107, 46.65, 1.5),
    (13.457, 30.529, 1.5),
    (21.751, 46.65, 1.5),
    (17.008, 28.687, 1.5),
    (24, 23.156, 1.5),
]))
fillet2.Radius = 1.75
doc.recompute()

fillet3 = doc.addObject("PartDesign::Fillet", "Fillet002")
body.addObject(fillet3)
fillet3.Base = (fillet2, edges_at(fillet2, [
    (-16.646, -13.768, 1.5),
    (-20.646, -6.839, 1.5),
    (-15.797, -4.039, 1.5),
    (-11.797, -10.968, 1.5),
]))
fillet3.Radius = 1.05
doc.recompute()

fillet4 = doc.addObject("PartDesign::Fillet", "Fillet003")
body.addObject(fillet4)
fillet4.Base = (fillet3, edges_at(fillet3, [
    (-22.444, -38.25, 1.5),
    (-24, -36.945, 1.5),
    (-24, 42.278, 1.5),
    (24, 42.278, 1.5),
]))
fillet4.Radius = 1.25
doc.recompute()

chamfer2 = doc.addObject("PartDesign::Chamfer", "Chamfer001")
body.addObject(chamfer2)
chamfer2.Base = (fillet4, edges_at(fillet4, [(10.25, 15.588, 0), (-16.75, 0, 0), (10.25, -15.588, 0)]))
chamfer2.Size = 1.5

doc.recompute()
